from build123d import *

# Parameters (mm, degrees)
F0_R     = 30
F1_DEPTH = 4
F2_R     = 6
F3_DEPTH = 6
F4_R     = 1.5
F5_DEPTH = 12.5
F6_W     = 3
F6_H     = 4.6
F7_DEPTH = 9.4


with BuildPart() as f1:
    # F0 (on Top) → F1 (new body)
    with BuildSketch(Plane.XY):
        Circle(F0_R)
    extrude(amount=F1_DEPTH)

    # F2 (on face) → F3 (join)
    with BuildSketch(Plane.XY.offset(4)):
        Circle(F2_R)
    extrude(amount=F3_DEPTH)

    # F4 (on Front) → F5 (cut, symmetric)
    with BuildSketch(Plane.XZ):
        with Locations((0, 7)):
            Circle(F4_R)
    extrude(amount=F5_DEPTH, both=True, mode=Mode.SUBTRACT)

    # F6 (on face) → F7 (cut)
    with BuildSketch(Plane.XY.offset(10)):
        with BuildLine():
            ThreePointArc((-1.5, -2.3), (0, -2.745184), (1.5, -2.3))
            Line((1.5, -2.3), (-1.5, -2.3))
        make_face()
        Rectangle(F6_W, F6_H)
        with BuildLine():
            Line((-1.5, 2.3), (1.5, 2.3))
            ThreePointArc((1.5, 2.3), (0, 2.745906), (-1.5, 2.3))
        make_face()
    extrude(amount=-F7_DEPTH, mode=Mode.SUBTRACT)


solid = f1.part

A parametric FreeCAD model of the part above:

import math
import FreeCAD as App
import Part
import Sketcher

V = App.Vector

doc = App.newDocument("Part")
params = doc.addObject("Spreadsheet::Sheet", "Params")
for row, (alias, value) in enumerate([
    ("sketch1_diameter", "60 mm"),
    ("pad1_length", "4 mm"),
    ("sketch2_diameter", "12 mm"),
    ("pad2_length", "6 mm"),
    ("sketch3_diameter", "3 mm"),
    ("pocket1_length", "25 mm"),
    ("sketch4_height", "4.6 mm"),
    ("pocket2_length", "9.4 mm"),
], start=1):
    params.set(f"A{row}", alias)
    params.set(f"B{row}", "=" + value)
    params.setAlias(f"B{row}", alias)

body = doc.addObject("PartDesign::Body", "Body")

# Sketch on XY plane
sketch1 = body.newObject("Sketcher::SketchObject", "Sketch")
sketch1.AttachmentSupport = (doc.getObject("XY_Plane"), [""])
sketch1.MapMode = "FlatFace"
sketch1.addGeometry(Part.Circle(V(0, 0, 0), V(0, 0, 1), 30), False)
sketch1.addConstraint([
    Sketcher.Constraint("Coincident", 0, 3, -1, 1),
    Sketcher.Constraint("Diameter", 0, 60.0),
])
sketch1.setExpression("Constraints[1]", "Params.sketch1_diameter")
pad1 = body.newObject("PartDesign::Pad", "Pad")
pad1.Profile = sketch1
pad1.setExpression("Length", "Params.pad1_length")

# Sketch on XY plane
sketch2 = body.newObject("Sketcher::SketchObject", "Sketch001")
sketch2.AttachmentSupport = (doc.getObject("XY_Plane"), [""])
sketch2.MapMode = "FlatFace"
sketch2.AttachmentOffset = App.Placement(V(0, 0, 4), App.Rotation())
sketch2.addGeometry(Part.Circle(V(0, 0, 0), V(0, 0, 1), 6), False)
sketch2.addConstraint([
    Sketcher.Constraint("Coincident", 0, 3, -1, 1),
    Sketcher.Constraint("Diameter", 0, 12.0),
])
sketch2.setExpression("Constraints[1]", "Params.sketch2_diameter")
pad2 = body.newObject("PartDesign::Pad", "Pad001")
pad2.Profile = sketch2
pad2.setExpression("Length", "Params.pad2_length")

# Sketch on XZ plane
sketch3 = body.newObject("Sketcher::SketchObject", "Sketch002")
sketch3.AttachmentSupport = (doc.getObject("XZ_Plane"), [""])
sketch3.MapMode = "FlatFace"
sketch3.addGeometry(Part.Circle(V(0, 7, 0), V(0, 0, 1), 1.5), False)
sketch3.addConstraint([
    Sketcher.Constraint("PointOnObject", 0, 3, -2),
    Sketcher.Constraint("Diameter", 0, 3.0),
    Sketcher.Constraint("DistanceY", -1, 1, 0, 3, 7.0),
])
sketch3.setExpression("Constraints[1]", "Params.sketch3_diameter")
pocket1 = body.newObject("PartDesign::Pocket", "Pocket")
pocket1.Profile = sketch3
pocket1.setExpression("Length", "Params.pocket1_length")
pocket1.Midplane = True

# Sketch on XY plane
sketch4 = body.newObject("Sketcher::SketchObject", "Sketch003")
sketch4.AttachmentSupport = (doc.getObject("XY_Plane"), [""])
sketch4.MapMode = "FlatFace"
sketch4.AttachmentOffset = App.Placement(V(0, 0, 10), App.Rotation())
sketch4.addGeometry([
    Part.ArcOfCircle(Part.Circle(V(0, 0.004453, 0), V(0, 0, 1), 2.749637), math.radians(-123.060654), math.radians(-56.939346)),
    Part.LineSegment(V(1.5, -2.3, 0), V(1.5, 2.3, 0)),
    Part.ArcOfCircle(Part.Circle(V(0, 0, 0), V(0, 0, 1), 2.745906), math.radians(56.888661), math.radians(123.111339)),
    Part.LineSegment(V(-1.5, 2.3, 0), V(-1.5, -2.3, 0)),
], False)
sketch4.addConstraint([
    Sketcher.Constraint("Coincident", 0, 2, 1, 1),
    Sketcher.Constraint("Coincident", 1, 2, 2, 1),
    Sketcher.Constraint("Coincident", 2, 2, 3, 1),
    Sketcher.Constraint("Coincident", 3, 2, 0, 1),
    Sketcher.Constraint("Vertical", 1),
    Sketcher.Constraint("Vertical", 3),
    Sketcher.Constraint("Coincident", 2, 3, -1, 1),
    Sketcher.Constraint("Symmetric", 0, 2, 2, 2, -1, 1),
    Sketcher.Constraint("PointOnObject", 0, 3, -2),
    Sketcher.Constraint("DistanceY", 1, 1, 1, 2, 4.6),
    Sketcher.Constraint("DistanceX", 2, 2, 1, 2, 3.0),
    Sketcher.Constraint("Radius", 0, 2.749637),
])
sketch4.setExpression("Constraints[9]", "Params.sketch4_height")
pocket2 = body.newObject("PartDesign::Pocket", "Pocket001")
pocket2.Profile = sketch4
pocket2.setExpression("Length", "Params.pocket2_length")

doc.recompute()
